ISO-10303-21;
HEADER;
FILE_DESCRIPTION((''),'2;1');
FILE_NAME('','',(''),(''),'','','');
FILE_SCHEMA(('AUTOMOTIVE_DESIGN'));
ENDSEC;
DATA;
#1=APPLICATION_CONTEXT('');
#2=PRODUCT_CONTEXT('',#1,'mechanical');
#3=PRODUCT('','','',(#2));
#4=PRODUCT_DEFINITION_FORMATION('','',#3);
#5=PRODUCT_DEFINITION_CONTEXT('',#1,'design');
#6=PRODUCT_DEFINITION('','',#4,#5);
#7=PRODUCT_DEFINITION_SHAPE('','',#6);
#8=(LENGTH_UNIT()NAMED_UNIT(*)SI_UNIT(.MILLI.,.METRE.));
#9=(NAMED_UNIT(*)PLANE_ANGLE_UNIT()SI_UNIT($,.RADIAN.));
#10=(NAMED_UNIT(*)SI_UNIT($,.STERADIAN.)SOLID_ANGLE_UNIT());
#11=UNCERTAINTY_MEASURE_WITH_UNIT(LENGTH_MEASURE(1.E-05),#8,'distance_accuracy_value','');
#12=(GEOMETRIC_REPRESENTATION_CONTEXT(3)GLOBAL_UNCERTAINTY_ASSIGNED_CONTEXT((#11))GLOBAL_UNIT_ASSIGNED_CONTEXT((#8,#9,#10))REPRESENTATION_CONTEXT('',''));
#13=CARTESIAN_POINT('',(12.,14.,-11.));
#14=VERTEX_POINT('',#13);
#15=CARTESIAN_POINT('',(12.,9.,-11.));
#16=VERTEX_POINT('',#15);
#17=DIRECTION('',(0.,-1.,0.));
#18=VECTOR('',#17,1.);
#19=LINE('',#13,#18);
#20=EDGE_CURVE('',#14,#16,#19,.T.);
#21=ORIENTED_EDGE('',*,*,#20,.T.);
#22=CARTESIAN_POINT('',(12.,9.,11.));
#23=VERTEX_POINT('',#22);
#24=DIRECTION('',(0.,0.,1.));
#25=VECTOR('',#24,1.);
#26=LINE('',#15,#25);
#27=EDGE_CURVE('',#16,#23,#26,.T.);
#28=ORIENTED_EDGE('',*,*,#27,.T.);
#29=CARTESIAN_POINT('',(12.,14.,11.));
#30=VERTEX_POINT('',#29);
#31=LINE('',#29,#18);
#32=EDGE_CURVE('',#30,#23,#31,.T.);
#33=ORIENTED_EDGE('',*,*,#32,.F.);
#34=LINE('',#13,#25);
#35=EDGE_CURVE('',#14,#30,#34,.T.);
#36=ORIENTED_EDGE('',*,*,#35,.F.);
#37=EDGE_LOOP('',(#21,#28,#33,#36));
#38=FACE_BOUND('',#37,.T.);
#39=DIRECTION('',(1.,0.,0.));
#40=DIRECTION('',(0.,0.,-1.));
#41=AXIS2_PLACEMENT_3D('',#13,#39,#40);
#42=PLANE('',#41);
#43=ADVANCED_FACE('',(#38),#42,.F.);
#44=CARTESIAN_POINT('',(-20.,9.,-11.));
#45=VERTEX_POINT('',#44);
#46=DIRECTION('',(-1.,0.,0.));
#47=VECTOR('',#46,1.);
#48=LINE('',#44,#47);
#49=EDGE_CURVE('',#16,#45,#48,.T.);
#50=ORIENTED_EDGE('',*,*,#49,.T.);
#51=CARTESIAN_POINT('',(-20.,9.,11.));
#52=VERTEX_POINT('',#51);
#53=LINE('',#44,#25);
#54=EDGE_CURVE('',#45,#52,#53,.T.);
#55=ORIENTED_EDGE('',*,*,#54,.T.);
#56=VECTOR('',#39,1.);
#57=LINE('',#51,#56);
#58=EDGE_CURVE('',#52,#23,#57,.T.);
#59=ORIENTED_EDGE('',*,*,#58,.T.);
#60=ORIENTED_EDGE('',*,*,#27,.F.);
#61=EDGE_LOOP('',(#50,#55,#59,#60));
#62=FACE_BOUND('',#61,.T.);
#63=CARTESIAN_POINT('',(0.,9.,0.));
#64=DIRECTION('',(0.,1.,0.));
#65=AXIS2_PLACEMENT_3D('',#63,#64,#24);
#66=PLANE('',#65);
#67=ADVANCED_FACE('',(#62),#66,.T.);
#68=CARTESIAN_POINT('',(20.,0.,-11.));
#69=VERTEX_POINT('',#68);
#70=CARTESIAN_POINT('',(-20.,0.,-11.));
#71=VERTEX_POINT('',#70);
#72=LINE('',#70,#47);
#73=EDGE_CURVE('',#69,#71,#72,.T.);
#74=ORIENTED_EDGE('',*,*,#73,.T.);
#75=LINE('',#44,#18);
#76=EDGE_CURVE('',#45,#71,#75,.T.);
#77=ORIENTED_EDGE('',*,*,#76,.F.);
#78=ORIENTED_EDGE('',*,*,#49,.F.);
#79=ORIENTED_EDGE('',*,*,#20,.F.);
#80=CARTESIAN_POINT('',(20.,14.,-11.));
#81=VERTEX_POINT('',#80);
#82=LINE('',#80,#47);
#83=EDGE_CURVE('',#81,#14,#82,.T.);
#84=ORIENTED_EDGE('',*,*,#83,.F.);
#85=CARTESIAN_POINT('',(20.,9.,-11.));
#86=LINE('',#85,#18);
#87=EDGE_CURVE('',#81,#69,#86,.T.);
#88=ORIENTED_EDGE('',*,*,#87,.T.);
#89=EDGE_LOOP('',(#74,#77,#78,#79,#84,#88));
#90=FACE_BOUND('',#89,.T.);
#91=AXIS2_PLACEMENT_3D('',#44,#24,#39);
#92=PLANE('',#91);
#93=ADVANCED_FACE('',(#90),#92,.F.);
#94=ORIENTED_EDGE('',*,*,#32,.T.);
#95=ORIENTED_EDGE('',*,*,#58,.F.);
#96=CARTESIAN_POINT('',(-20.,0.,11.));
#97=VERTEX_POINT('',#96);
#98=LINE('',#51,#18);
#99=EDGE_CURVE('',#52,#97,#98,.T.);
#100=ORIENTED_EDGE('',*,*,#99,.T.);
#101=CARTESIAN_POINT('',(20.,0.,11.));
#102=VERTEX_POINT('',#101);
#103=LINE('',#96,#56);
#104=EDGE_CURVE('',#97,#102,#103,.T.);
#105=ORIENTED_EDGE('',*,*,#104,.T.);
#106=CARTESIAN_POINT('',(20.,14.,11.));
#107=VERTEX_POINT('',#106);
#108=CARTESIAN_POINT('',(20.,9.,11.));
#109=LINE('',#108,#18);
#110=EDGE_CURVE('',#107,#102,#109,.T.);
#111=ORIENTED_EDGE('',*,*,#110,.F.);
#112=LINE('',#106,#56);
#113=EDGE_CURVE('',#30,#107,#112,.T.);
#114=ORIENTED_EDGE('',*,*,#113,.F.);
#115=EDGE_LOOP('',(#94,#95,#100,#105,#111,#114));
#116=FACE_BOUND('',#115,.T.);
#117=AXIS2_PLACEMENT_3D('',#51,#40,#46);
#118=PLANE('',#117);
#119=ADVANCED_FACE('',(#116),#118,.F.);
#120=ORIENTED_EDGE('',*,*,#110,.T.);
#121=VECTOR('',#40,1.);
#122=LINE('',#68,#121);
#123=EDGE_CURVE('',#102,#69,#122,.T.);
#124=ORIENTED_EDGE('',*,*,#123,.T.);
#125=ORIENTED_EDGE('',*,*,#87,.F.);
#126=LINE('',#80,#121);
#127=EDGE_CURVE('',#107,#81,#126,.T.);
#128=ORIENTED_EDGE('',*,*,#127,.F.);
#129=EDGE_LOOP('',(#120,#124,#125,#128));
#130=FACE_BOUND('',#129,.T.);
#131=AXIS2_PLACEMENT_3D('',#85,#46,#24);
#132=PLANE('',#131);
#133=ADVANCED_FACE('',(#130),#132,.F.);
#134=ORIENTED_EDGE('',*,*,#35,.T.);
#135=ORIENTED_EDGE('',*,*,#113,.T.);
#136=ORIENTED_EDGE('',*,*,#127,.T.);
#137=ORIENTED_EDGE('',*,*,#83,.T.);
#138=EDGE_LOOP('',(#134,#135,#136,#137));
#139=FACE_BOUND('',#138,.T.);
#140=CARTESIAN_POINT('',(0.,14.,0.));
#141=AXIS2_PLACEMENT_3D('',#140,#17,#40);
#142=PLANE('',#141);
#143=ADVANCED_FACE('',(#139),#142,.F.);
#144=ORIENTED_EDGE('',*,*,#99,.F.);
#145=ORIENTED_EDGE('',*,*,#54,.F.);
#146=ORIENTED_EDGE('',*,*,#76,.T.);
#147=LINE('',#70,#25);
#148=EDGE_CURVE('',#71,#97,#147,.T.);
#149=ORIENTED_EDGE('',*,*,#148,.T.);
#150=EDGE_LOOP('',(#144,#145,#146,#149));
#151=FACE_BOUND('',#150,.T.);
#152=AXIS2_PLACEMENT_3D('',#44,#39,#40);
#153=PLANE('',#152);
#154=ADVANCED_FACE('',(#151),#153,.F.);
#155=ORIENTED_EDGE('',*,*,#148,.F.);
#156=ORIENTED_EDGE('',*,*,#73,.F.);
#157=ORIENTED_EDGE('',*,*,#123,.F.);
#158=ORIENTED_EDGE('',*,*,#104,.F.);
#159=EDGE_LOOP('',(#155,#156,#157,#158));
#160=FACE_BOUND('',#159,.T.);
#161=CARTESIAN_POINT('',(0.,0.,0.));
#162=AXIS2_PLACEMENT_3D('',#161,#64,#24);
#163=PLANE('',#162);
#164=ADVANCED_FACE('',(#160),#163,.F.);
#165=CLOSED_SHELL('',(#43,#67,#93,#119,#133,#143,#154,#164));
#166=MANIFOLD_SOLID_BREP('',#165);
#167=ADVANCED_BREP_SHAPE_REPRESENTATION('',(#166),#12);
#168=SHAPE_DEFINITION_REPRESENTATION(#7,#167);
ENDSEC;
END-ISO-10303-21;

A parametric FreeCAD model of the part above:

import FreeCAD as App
import Part
import Sketcher

V = App.Vector
Q = App.Units.Quantity


def add_polygon(sketch, points):
    """Adds a closed chain of lines whose ends are joined by coincident constraints."""
    first, n = sketch.GeometryCount, len(points)
    for a, b in zip(points, points[1:] + points[:1]):
        sketch.addGeometry(Part.LineSegment(App.Vector(*a, 0), App.Vector(*b, 0)), False)
    for i in range(n):
        sketch.addConstraint(Sketcher.Constraint("Coincident", first + i, 2, first + (i + 1) % n, 1))

doc = App.newDocument("Part")
body = doc.addObject("PartDesign::Body", "Body")

# Sketch on XZ plane
sketch1 = doc.addObject("Sketcher::SketchObject", "Sketch")
body.addObject(sketch1)
sketch1.AttachmentSupport = (doc.XZ_Plane, [""])
sketch1.MapMode = "FlatFace"
add_polygon(sketch1, [(-20, -11), (-20, 11), (20, 11), (20, -11)])  # lines 0-3
sketch1.addConstraint([
    Sketcher.Constraint("Vertical", 0),
    Sketcher.Constraint("Horizontal", 1),
    Sketcher.Constraint("Vertical", 2),
    Sketcher.Constraint("Horizontal", 3),
    Sketcher.Constraint("Symmetric", 0, 2, 2, 2, -1, 1),
    Sketcher.Constraint("DistanceX", 1, 1, 1, 2, Q("40 mm")),
    Sketcher.Constraint("DistanceY", 0, 1, 0, 2, Q("22 mm")),
])
pad1 = doc.addObject("PartDesign::Pad", "Pad")
body.addObject(pad1)
pad1.Profile = sketch1
pad1.Length = 9
pad1.Reversed = True

# Sketch on XZ plane
sketch2 = doc.addObject("Sketcher::SketchObject", "Sketch001")
body.addObject(sketch2)
sketch2.AttachmentSupport = (doc.XZ_Plane, [""])
sketch2.MapMode = "FlatFace"
sketch2.AttachmentOffset = App.Placement(V(0, 0, -9), App.Rotation())
add_polygon(sketch2, [(12, -11), (12, 11), (20, 11), (20, -11)])  # lines 0-3
sketch2.addConstraint([
    Sketcher.Constraint("Vertical", 0),
    Sketcher.Constraint("Horizontal", 1),
    Sketcher.Constraint("Vertical", 2),
    Sketcher.Constraint("Horizontal", 3),
    Sketcher.Constraint("DistanceX", 1, 1, 1, 2, Q("8 mm")),
    Sketcher.Constraint("DistanceY", 0, 1, 0, 2, Q("22 mm")),
    Sketcher.Constraint("DistanceX", -1, 1, 0, 2, Q("12 mm")),
    Sketcher.Constraint("DistanceY", -1, 1, 0, 2, Q("11 mm")),
])
pad2 = doc.addObject("PartDesign::Pad", "Pad001")
body.addObject(pad2)
pad2.Profile = sketch2
pad2.Length = 5
pad2.Reversed = True

doc.recompute()
